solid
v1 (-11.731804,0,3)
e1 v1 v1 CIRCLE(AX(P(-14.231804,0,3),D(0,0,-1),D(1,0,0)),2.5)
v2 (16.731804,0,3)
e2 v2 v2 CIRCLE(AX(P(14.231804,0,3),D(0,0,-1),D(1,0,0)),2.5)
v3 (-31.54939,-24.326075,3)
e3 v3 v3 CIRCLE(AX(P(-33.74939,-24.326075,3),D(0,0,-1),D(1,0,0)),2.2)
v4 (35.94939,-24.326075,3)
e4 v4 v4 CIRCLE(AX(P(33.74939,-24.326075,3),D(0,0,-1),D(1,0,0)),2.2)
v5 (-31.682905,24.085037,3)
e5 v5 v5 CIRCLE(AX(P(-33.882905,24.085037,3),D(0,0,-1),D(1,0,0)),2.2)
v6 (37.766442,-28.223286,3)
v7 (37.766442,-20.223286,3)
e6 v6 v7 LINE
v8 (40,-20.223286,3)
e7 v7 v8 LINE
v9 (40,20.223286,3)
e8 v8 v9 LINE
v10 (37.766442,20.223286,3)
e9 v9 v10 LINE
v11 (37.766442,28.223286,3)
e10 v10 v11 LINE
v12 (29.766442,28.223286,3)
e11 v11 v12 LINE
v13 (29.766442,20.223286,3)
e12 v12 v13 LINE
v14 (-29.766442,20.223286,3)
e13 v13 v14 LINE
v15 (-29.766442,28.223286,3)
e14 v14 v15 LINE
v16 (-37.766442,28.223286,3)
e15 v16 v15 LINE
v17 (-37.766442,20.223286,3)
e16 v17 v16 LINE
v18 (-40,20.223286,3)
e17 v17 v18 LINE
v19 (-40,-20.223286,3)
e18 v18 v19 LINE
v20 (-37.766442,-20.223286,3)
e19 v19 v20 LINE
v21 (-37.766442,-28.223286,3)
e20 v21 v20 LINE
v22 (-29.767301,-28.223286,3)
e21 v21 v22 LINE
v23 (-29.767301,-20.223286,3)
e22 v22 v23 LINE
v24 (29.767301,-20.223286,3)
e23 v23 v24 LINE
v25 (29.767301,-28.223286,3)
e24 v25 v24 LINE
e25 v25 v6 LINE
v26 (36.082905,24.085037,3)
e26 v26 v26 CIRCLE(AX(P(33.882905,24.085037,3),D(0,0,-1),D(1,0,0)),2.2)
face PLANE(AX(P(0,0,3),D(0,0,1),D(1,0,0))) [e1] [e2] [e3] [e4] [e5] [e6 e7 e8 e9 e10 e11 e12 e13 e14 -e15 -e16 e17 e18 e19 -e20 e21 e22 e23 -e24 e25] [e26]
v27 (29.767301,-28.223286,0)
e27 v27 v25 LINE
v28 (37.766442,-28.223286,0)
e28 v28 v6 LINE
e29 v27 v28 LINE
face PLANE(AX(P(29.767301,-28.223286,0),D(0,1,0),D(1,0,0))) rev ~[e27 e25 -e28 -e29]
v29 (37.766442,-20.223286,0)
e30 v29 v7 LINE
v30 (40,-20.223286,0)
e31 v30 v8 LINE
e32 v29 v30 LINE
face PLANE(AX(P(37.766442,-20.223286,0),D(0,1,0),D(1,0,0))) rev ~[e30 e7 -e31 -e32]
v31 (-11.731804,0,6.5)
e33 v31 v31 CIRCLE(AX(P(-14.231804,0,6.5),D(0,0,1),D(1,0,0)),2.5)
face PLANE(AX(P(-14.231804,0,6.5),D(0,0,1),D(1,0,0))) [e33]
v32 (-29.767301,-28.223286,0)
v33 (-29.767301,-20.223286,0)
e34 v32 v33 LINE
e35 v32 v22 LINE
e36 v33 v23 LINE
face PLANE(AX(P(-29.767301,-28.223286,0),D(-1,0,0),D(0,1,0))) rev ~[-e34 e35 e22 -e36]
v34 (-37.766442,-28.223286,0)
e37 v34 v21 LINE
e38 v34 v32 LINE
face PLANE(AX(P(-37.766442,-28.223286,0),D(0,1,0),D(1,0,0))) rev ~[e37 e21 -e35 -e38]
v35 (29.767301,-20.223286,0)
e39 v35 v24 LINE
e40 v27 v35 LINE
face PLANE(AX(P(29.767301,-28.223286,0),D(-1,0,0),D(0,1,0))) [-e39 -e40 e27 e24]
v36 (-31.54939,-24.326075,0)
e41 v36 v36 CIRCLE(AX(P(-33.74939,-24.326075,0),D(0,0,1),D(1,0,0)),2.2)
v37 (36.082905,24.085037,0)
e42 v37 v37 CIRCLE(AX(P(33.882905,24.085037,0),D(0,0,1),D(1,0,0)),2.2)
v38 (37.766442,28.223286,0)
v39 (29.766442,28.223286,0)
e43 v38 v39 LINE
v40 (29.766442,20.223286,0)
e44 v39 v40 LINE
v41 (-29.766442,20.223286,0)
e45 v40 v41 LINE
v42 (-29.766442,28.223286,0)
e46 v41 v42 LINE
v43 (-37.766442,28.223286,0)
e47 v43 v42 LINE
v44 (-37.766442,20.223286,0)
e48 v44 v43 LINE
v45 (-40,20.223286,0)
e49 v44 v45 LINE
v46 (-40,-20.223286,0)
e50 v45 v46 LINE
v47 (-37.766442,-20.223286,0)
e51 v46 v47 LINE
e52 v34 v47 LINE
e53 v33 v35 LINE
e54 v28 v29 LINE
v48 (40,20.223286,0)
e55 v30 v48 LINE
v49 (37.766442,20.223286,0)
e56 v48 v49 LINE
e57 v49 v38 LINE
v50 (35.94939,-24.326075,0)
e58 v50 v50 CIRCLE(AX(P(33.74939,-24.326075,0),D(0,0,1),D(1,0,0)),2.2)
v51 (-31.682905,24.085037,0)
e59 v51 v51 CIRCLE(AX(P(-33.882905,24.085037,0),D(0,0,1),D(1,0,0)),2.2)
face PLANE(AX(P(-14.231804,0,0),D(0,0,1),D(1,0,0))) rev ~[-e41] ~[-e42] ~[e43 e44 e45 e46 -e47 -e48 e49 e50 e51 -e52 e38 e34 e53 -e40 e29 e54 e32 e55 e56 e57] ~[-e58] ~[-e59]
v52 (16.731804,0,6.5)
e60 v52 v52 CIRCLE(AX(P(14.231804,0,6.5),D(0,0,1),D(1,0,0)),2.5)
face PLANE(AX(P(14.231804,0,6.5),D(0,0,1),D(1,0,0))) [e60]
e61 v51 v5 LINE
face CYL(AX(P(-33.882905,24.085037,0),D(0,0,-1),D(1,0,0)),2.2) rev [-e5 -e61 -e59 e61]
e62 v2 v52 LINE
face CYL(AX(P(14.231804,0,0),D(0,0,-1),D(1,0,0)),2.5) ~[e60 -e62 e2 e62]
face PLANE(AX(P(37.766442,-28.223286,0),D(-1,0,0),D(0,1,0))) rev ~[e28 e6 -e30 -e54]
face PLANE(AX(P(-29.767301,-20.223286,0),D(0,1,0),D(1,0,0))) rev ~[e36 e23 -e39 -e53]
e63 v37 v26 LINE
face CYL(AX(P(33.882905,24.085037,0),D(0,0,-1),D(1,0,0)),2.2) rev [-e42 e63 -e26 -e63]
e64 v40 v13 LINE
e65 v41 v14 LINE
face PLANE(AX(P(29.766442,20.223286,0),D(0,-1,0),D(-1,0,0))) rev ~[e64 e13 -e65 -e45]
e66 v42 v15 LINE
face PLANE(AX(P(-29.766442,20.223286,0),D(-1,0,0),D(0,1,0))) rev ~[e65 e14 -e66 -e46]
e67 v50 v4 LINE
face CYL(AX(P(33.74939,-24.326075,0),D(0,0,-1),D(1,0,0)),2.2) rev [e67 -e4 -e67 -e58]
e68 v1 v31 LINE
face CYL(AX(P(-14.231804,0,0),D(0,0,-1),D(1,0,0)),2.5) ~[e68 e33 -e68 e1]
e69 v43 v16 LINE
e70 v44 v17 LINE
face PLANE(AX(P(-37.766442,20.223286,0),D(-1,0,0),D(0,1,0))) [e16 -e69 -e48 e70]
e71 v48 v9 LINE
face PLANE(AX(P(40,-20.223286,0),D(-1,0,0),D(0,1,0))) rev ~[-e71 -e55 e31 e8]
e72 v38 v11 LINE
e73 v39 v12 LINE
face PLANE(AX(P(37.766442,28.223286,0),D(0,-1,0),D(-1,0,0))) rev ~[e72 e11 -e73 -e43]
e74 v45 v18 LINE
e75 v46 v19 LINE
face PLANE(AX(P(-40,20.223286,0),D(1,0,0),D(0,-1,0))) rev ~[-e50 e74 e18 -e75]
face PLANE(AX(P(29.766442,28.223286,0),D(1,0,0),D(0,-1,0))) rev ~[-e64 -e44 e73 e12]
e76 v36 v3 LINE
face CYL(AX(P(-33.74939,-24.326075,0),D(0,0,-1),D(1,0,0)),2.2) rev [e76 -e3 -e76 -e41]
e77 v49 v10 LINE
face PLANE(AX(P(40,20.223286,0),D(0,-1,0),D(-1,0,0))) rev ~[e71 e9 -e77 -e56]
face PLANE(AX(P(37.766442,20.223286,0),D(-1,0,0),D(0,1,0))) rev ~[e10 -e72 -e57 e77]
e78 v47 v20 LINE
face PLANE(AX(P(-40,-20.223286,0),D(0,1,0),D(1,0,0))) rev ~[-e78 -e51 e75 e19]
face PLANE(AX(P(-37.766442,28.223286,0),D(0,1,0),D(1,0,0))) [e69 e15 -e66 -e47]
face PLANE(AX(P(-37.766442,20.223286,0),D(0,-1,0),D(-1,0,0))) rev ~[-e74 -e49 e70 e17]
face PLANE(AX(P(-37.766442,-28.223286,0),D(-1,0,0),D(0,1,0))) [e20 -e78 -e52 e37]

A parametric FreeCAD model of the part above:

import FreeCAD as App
import Part
import Sketcher

V = App.Vector

doc = App.newDocument("Part")
body = doc.addObject("PartDesign::Body", "Body")

# Sketch on XY plane
sketch1 = doc.addObject("Sketcher::SketchObject", "Sketch")
body.addObject(sketch1)
sketch1.AttachmentSupport = (doc.XY_Plane, [""])
sketch1.MapMode = "FlatFace"
sketch1.addGeometry(Part.LineSegment(V(-40, 20.223286, 0), V(-40, -20.223286, 0)), False)
sketch1.addGeometry(Part.LineSegment(V(-40, -20.223286, 0), V(-37.766442, -20.223286, 0)), False)
sketch1.addGeometry(Part.LineSegment(V(-37.766442, -20.223286, 0), V(-37.766442, -28.223286, 0)), False)
sketch1.addGeometry(Part.LineSegment(V(-37.766442, -28.223286, 0), V(-29.767301, -28.223286, 0)), False)
sketch1.addGeometry(Part.LineSegment(V(-29.767301, -28.223286, 0), V(-29.767301, -20.223286, 0)), False)
sketch1.addGeometry(Part.LineSegment(V(-29.767301, -20.223286, 0), V(29.767301, -20.223286, 0)), False)
sketch1.addGeometry(Part.LineSegment(V(29.767301, -20.223286, 0), V(29.767301, -28.223286, 0)), False)
sketch1.addGeometry(Part.LineSegment(V(29.767301, -28.223286, 0), V(37.766442, -28.223286, 0)), False)
sketch1.addGeometry(Part.LineSegment(V(37.766442, -28.223286, 0), V(37.766442, -20.223286, 0)), False)
sketch1.addGeometry(Part.LineSegment(V(37.766442, -20.223286, 0), V(40, -20.223286, 0)), False)
sketch1.addGeometry(Part.LineSegment(V(40, -20.223286, 0), V(40, 20.223286, 0)), False)
sketch1.addGeometry(Part.LineSegment(V(40, 20.223286, 0), V(37.766442, 20.223286, 0)), False)
sketch1.addGeometry(Part.LineSegment(V(37.766442, 20.223286, 0), V(37.766442, 28.223286, 0)), False)
sketch1.addGeometry(Part.LineSegment(V(37.766442, 28.223286, 0), V(29.766442, 28.223286, 0)), False)
sketch1.addGeometry(Part.LineSegment(V(29.766442, 28.223286, 0), V(29.766442, 20.223286, 0)), False)
sketch1.addGeometry(Part.LineSegment(V(29.766442, 20.223286, 0), V(-29.766442, 20.223286, 0)), False)
sketch1.addGeometry(Part.LineSegment(V(-29.766442, 20.223286, 0), V(-29.766442, 28.223286, 0)), False)
sketch1.addGeometry(Part.LineSegment(V(-29.766442, 28.223286, 0), V(-37.766442, 28.223286, 0)), False)
sketch1.addGeometry(Part.LineSegment(V(-37.766442, 28.223286, 0), V(-37.766442, 20.223286, 0)), False)
sketch1.addGeometry(Part.LineSegment(V(-37.766442, 20.223286, 0), V(-40, 20.223286, 0)), False)
sketch1.addConstraint(Sketcher.Constraint("Coincident", 0, 2, 1, 1))
sketch1.addConstraint(Sketcher.Constraint("Coincident", 1, 2, 2, 1))
sketch1.addConstraint(Sketcher.Constraint("Coincident", 2, 2, 3, 1))
sketch1.addConstraint(Sketcher.Constraint("Coincident", 3, 2, 4, 1))
sketch1.addConstraint(Sketcher.Constraint("Coincident", 4, 2, 5, 1))
sketch1.addConstraint(Sketcher.Constraint("Coincident", 5, 2, 6, 1))
sketch1.addConstraint(Sketcher.Constraint("Coincident", 6, 2, 7, 1))
sketch1.addConstraint(Sketcher.Constraint("Coincident", 7, 2, 8, 1))
sketch1.addConstraint(Sketcher.Constraint("Coincident", 8, 2, 9, 1))
sketch1.addConstraint(Sketcher.Constraint("Coincident", 9, 2, 10, 1))
sketch1.addConstraint(Sketcher.Constraint("Coincident", 10, 2, 11, 1))
sketch1.addConstraint(Sketcher.Constraint("Coincident", 11, 2, 12, 1))
sketch1.addConstraint(Sketcher.Constraint("Coincident", 12, 2, 13, 1))
sketch1.addConstraint(Sketcher.Constraint("Coincident", 13, 2, 14, 1))
sketch1.addConstraint(Sketcher.Constraint("Coincident", 14, 2, 15, 1))
sketch1.addConstraint(Sketcher.Constraint("Coincident", 15, 2, 16, 1))
sketch1.addConstraint(Sketcher.Constraint("Coincident", 16, 2, 17, 1))
sketch1.addConstraint(Sketcher.Constraint("Coincident", 17, 2, 18, 1))
sketch1.addConstraint(Sketcher.Constraint("Coincident", 18, 2, 19, 1))
sketch1.addConstraint(Sketcher.Constraint("Coincident", 19, 2, 0, 1))
sketch1.addConstraint(Sketcher.Constraint("Vertical", 0))
sketch1.addConstraint(Sketcher.Constraint("Horizontal", 1))
sketch1.addConstraint(Sketcher.Constraint("Vertical", 2))
sketch1.addConstraint(Sketcher.Constraint("Horizontal", 3))
sketch1.addConstraint(Sketcher.Constraint("Vertical", 4))
sketch1.addConstraint(Sketcher.Constraint("Horizontal", 5))
sketch1.addConstraint(Sketcher.Constraint("Vertical", 6))
sketch1.addConstraint(Sketcher.Constraint("Horizontal", 7))
sketch1.addConstraint(Sketcher.Constraint("Vertical", 8))
sketch1.addConstraint(Sketcher.Constraint("Horizontal", 9))
sketch1.addConstraint(Sketcher.Constraint("Vertical", 10))
sketch1.addConstraint(Sketcher.Constraint("Horizontal", 11))
sketch1.addConstraint(Sketcher.Constraint("Vertical", 12))
sketch1.addConstraint(Sketcher.Constraint("Horizontal", 13))
sketch1.addConstraint(Sketcher.Constraint("Vertical", 14))
sketch1.addConstraint(Sketcher.Constraint("Horizontal", 15))
sketch1.addConstraint(Sketcher.Constraint("Vertical", 16))
sketch1.addConstraint(Sketcher.Constraint("Horizontal", 17))
sketch1.addConstraint(Sketcher.Constraint("Vertical", 18))
sketch1.addConstraint(Sketcher.Constraint("Horizontal", 19))
sketch1.addConstraint(Sketcher.Constraint("Symmetric", 0, 2, 10, 2, -1, 1))
sketch1.addConstraint(Sketcher.Constraint("Symmetric", 2, 2, 12, 2, -1, 1))
sketch1.addConstraint(Sketcher.Constraint("Symmetric", 7, 2, 17, 2, -1, 1))
sketch1.addConstraint(Sketcher.Constraint("Symmetric", 3, 2, 6, 2, -2))
sketch1.addConstraint(Sketcher.Constraint("Symmetric", 1, 2, 8, 2, -2))
sketch1.addConstraint(Sketcher.Constraint("Horizontal", 1, 2, 4, 2))
sketch1.addConstraint(Sketcher.Constraint("Horizontal", 11, 2, 14, 2))
sketch1.addConstraint(Sketcher.Constraint("Horizontal", 15, 2, 18, 2))
sketch1.addConstraint(Sketcher.Constraint("Equal", 13, 17))
sketch1.addConstraint(Sketcher.Constraint("Equal", 17, 2))
sketch1.addConstraint(Sketcher.Constraint("DistanceX", 13, 2, 13, 1, 8.0))
sketch1.addConstraint(Sketcher.Constraint("DistanceX", 0, 2, -1, 1, 40.0))
sketch1.addConstraint(Sketcher.Constraint("DistanceX", 3, 1, 3, 2, 7.999141))
sketch1.addConstraint(Sketcher.Constraint("DistanceX", 11, 2, 11, 1, 2.233558))
sketch1.addConstraint(Sketcher.Constraint("DistanceY", 0, 2, 0, 1, 40.446572))
pad1 = doc.addObject("PartDesign::Pad", "Pad")
body.addObject(pad1)
pad1.Profile = sketch1
pad1.Length = 3

# Sketch on XY plane
sketch2 = doc.addObject("Sketcher::SketchObject", "Sketch001")
body.addObject(sketch2)
sketch2.AttachmentSupport = (doc.XY_Plane, [""])
sketch2.MapMode = "FlatFace"
sketch2.addGeometry(Part.Circle(V(-33.882905, 24.085037, 0), V(0, 0, 1), 2.2), False)
sketch2.addGeometry(Part.Circle(V(-33.74939, -24.326075, 0), V(0, 0, 1), 2.2), False)
sketch2.addGeometry(Part.Circle(V(33.882905, 24.085037, 0), V(0, 0, 1), 2.2), False)
sketch2.addGeometry(Part.Circle(V(33.74939, -24.326075, 0), V(0, 0, 1), 2.2), False)
sketch2.addConstraint(Sketcher.Constraint("Equal", 0, 1))
sketch2.addConstraint(Sketcher.Constraint("Equal", 1, 2))
sketch2.addConstraint(Sketcher.Constraint("Equal", 2, 3))
sketch2.addConstraint(Sketcher.Constraint("Symmetric", 0, 3, 2, 3, -2))
sketch2.addConstraint(Sketcher.Constraint("Symmetric", 1, 3, 3, 3, -2))
sketch2.addConstraint(Sketcher.Constraint("Diameter", 0, 4.4))
sketch2.addConstraint(Sketcher.Constraint("DistanceX", 1, 3, -1, 1, 33.74939))
sketch2.addConstraint(Sketcher.Constraint("DistanceX", 0, 3, 2, 3, 67.76581))
sketch2.addConstraint(Sketcher.Constraint("DistanceY", -1, 1, 0, 3, 24.085037))
sketch2.addConstraint(Sketcher.Constraint("DistanceY", 1, 3, -1, 1, 24.326075))
pocket1 = doc.addObject("PartDesign::Pocket", "Pocket")
body.addObject(pocket1)
pocket1.Profile = sketch2
pocket1.Length = 5
pocket1.Reversed = True

# Sketch on XY plane
sketch3 = doc.addObject("Sketcher::SketchObject", "Sketch002")
body.addObject(sketch3)
sketch3.AttachmentSupport = (doc.XY_Plane, [""])
sketch3.MapMode = "FlatFace"
sketch3.addGeometry(Part.Circle(V(-14.231804, 0, 0), V(0, 0, 1), 2.5), False)
sketch3.addGeometry(Part.Circle(V(14.231804, 0, 0), V(0, 0, 1), 2.5), False)
sketch3.addConstraint(Sketcher.Constraint("Equal", 0, 1))
sketch3.addConstraint(Sketcher.Constraint("Symmetric", 0, 3, 1, 3, -1, 1))
sketch3.addConstraint(Sketcher.Constraint("PointOnObject", 0, 3, -1))
sketch3.addConstraint(Sketcher.Constraint("Diameter", 0, 5.0))
sketch3.addConstraint(Sketcher.Constraint("DistanceX", 0, 3, 1, 3, 28.463608))
pad2 = doc.addObject("PartDesign::Pad", "Pad001")
body.addObject(pad2)
pad2.Profile = sketch3
pad2.Length = 6.5

doc.recompute()
